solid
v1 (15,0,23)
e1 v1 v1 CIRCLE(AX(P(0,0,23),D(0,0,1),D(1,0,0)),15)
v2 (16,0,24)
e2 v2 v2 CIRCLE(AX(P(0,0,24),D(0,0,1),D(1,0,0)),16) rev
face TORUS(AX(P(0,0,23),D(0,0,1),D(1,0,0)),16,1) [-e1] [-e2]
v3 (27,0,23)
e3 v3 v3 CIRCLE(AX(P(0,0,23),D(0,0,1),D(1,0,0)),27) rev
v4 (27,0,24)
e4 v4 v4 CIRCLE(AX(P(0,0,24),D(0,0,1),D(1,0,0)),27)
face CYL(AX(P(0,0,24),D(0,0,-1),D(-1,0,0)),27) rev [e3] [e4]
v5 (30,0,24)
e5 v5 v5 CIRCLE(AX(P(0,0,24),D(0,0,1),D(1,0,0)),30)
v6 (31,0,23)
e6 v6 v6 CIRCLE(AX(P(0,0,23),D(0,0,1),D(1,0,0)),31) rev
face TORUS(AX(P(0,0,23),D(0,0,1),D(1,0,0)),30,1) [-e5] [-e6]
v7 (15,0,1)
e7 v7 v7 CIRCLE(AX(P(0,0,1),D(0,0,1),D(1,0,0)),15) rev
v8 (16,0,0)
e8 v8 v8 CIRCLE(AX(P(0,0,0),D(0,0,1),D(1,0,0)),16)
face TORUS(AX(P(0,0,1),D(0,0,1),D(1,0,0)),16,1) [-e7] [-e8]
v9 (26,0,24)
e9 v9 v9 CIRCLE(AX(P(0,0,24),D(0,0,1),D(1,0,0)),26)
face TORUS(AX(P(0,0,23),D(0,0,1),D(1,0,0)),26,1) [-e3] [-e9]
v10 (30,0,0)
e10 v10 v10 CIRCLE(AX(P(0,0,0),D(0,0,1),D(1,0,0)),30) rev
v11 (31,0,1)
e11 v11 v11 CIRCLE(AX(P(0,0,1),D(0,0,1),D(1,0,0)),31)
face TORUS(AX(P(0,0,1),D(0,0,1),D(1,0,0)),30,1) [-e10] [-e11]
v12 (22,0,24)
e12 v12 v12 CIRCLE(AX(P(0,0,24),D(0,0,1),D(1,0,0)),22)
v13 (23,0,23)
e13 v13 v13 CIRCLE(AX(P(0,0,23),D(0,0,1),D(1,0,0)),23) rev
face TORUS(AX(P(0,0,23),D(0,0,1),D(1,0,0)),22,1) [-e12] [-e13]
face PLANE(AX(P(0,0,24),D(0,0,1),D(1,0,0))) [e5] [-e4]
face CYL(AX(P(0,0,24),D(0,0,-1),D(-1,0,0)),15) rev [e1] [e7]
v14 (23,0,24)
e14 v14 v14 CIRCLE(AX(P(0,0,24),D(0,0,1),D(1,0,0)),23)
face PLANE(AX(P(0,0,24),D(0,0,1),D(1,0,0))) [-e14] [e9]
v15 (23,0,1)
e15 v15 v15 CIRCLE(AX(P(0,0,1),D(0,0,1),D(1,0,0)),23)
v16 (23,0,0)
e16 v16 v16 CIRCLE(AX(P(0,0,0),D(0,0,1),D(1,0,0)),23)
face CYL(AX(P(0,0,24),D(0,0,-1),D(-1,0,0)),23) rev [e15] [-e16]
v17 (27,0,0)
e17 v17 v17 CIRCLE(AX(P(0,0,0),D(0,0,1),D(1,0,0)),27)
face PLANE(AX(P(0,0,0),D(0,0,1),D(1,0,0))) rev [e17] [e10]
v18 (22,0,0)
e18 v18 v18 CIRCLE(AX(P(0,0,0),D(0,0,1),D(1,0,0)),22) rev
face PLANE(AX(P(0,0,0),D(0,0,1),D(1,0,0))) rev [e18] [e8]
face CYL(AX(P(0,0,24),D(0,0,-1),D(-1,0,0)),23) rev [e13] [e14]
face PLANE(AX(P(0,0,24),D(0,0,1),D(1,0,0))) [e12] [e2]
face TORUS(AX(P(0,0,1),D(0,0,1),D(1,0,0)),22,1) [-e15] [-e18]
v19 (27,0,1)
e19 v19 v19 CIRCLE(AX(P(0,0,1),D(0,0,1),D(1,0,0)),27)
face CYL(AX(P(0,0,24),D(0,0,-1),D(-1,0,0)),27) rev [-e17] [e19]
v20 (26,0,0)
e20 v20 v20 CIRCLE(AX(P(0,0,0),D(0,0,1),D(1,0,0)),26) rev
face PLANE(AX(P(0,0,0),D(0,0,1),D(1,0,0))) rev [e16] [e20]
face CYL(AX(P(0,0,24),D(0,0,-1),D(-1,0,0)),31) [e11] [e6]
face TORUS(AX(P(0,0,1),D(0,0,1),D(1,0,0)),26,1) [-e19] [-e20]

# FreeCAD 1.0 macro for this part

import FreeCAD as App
import Part
import Sketcher

V = App.Vector


def edges_at(feature, points):
    """Names of the edges that pass closest to the given points."""
    edges = feature.Shape.Edges
    near = lambda p: min(range(len(edges)), key=lambda i: edges[i].distToShape(Part.Vertex(*p))[0])
    return sorted({f"Edge{near(p) + 1}" for p in points})

doc = App.newDocument("Part")
body = doc.addObject("PartDesign::Body", "Body")

# Sketch on XY plane
sketch1 = body.newObject("Sketcher::SketchObject", "Sketch")
sketch1.AttachmentSupport = (doc.getObject("XY_Plane"), [""])
sketch1.MapMode = "FlatFace"
sketch1.addGeometry([
    Part.Circle(V(0, 0, 0), V(0, 0, 1), 23),
    Part.Circle(V(0, 0, 0), V(0, 0, 1), 15),
], False)
sketch1.addConstraint([
    Sketcher.Constraint("Coincident", 0, 3, -1, 1),
    Sketcher.Constraint("Coincident", 1, 3, -1, 1),
    Sketcher.Constraint("Diameter", 0, 46.0),
    Sketcher.Constraint("Diameter", 1, 30.0),
])
pad1 = body.newObject("PartDesign::Pad", "Pad")
pad1.Profile = sketch1
pad1.Length = 24
doc.recompute()

fillet = body.newObject("PartDesign::Fillet", "Fillet")
fillet.Base = (pad1, edges_at(pad1, [(-23, 0, 0), (-23, 0, 24)]))
fillet.Radius = 1

# Sketch on XY plane
sketch2 = body.newObject("Sketcher::SketchObject", "Sketch001")
sketch2.AttachmentSupport = (doc.getObject("XY_Plane"), [""])
sketch2.MapMode = "FlatFace"
sketch2.addGeometry([
    Part.Circle(V(0, 0, 0), V(0, 0, 1), 27),
    Part.Circle(V(0, 0, 0), V(0, 0, 1), 23),
], False)
sketch2.addConstraint([
    Sketcher.Constraint("Coincident", 0, 3, -1, 1),
    Sketcher.Constraint("Coincident", 1, 3, -1, 1),
    Sketcher.Constraint("Diameter", 0, 54.0),
    Sketcher.Constraint("Diameter", 1, 46.0),
])
pad2 = body.newObject("PartDesign::Pad", "Pad001")
pad2.Profile = sketch2
pad2.Length = 24
doc.recompute()

fillet2 = body.newObject("PartDesign::Fillet", "Fillet001")
fillet2.Base = (pad2, edges_at(pad2, [(-27, 0, 24), (-27, 0, 0)]))
fillet2.Radius = 1

# Sketch on XY plane
sketch3 = body.newObject("Sketcher::SketchObject", "Sketch002")
sketch3.AttachmentSupport = (doc.getObject("XY_Plane"), [""])
sketch3.MapMode = "FlatFace"
sketch3.addGeometry([
    Part.Circle(V(0, 0, 0), V(0, 0, 1), 31),
    Part.Circle(V(0, 0, 0), V(0, 0, 1), 27),
], False)
sketch3.addConstraint([
    Sketcher.Constraint("Coincident", 0, 3, -1, 1),
    Sketcher.Constraint("Coincident", 1, 3, -1, 1),
    Sketcher.Constraint("Diameter", 0, 62.0),
    Sketcher.Constraint("Diameter", 1, 54.0),
])
pad3 = body.newObject("PartDesign::Pad", "Pad002")
pad3.Profile = sketch3
pad3.Length = 24
doc.recompute()

fillet3 = body.newObject("PartDesign::Fillet", "Fillet002")
fillet3.Base = (pad3, edges_at(pad3, [(-31, 0, 24), (-31, 0, 0)]))
fillet3.Radius = 1
doc.recompute()

fillet4 = body.newObject("PartDesign::Fillet", "Fillet003")
fillet4.Base = (fillet3, edges_at(fillet3, [(-15, 0, 0), (-15, 0, 24)]))
fillet4.Radius = 1

doc.recompute()
